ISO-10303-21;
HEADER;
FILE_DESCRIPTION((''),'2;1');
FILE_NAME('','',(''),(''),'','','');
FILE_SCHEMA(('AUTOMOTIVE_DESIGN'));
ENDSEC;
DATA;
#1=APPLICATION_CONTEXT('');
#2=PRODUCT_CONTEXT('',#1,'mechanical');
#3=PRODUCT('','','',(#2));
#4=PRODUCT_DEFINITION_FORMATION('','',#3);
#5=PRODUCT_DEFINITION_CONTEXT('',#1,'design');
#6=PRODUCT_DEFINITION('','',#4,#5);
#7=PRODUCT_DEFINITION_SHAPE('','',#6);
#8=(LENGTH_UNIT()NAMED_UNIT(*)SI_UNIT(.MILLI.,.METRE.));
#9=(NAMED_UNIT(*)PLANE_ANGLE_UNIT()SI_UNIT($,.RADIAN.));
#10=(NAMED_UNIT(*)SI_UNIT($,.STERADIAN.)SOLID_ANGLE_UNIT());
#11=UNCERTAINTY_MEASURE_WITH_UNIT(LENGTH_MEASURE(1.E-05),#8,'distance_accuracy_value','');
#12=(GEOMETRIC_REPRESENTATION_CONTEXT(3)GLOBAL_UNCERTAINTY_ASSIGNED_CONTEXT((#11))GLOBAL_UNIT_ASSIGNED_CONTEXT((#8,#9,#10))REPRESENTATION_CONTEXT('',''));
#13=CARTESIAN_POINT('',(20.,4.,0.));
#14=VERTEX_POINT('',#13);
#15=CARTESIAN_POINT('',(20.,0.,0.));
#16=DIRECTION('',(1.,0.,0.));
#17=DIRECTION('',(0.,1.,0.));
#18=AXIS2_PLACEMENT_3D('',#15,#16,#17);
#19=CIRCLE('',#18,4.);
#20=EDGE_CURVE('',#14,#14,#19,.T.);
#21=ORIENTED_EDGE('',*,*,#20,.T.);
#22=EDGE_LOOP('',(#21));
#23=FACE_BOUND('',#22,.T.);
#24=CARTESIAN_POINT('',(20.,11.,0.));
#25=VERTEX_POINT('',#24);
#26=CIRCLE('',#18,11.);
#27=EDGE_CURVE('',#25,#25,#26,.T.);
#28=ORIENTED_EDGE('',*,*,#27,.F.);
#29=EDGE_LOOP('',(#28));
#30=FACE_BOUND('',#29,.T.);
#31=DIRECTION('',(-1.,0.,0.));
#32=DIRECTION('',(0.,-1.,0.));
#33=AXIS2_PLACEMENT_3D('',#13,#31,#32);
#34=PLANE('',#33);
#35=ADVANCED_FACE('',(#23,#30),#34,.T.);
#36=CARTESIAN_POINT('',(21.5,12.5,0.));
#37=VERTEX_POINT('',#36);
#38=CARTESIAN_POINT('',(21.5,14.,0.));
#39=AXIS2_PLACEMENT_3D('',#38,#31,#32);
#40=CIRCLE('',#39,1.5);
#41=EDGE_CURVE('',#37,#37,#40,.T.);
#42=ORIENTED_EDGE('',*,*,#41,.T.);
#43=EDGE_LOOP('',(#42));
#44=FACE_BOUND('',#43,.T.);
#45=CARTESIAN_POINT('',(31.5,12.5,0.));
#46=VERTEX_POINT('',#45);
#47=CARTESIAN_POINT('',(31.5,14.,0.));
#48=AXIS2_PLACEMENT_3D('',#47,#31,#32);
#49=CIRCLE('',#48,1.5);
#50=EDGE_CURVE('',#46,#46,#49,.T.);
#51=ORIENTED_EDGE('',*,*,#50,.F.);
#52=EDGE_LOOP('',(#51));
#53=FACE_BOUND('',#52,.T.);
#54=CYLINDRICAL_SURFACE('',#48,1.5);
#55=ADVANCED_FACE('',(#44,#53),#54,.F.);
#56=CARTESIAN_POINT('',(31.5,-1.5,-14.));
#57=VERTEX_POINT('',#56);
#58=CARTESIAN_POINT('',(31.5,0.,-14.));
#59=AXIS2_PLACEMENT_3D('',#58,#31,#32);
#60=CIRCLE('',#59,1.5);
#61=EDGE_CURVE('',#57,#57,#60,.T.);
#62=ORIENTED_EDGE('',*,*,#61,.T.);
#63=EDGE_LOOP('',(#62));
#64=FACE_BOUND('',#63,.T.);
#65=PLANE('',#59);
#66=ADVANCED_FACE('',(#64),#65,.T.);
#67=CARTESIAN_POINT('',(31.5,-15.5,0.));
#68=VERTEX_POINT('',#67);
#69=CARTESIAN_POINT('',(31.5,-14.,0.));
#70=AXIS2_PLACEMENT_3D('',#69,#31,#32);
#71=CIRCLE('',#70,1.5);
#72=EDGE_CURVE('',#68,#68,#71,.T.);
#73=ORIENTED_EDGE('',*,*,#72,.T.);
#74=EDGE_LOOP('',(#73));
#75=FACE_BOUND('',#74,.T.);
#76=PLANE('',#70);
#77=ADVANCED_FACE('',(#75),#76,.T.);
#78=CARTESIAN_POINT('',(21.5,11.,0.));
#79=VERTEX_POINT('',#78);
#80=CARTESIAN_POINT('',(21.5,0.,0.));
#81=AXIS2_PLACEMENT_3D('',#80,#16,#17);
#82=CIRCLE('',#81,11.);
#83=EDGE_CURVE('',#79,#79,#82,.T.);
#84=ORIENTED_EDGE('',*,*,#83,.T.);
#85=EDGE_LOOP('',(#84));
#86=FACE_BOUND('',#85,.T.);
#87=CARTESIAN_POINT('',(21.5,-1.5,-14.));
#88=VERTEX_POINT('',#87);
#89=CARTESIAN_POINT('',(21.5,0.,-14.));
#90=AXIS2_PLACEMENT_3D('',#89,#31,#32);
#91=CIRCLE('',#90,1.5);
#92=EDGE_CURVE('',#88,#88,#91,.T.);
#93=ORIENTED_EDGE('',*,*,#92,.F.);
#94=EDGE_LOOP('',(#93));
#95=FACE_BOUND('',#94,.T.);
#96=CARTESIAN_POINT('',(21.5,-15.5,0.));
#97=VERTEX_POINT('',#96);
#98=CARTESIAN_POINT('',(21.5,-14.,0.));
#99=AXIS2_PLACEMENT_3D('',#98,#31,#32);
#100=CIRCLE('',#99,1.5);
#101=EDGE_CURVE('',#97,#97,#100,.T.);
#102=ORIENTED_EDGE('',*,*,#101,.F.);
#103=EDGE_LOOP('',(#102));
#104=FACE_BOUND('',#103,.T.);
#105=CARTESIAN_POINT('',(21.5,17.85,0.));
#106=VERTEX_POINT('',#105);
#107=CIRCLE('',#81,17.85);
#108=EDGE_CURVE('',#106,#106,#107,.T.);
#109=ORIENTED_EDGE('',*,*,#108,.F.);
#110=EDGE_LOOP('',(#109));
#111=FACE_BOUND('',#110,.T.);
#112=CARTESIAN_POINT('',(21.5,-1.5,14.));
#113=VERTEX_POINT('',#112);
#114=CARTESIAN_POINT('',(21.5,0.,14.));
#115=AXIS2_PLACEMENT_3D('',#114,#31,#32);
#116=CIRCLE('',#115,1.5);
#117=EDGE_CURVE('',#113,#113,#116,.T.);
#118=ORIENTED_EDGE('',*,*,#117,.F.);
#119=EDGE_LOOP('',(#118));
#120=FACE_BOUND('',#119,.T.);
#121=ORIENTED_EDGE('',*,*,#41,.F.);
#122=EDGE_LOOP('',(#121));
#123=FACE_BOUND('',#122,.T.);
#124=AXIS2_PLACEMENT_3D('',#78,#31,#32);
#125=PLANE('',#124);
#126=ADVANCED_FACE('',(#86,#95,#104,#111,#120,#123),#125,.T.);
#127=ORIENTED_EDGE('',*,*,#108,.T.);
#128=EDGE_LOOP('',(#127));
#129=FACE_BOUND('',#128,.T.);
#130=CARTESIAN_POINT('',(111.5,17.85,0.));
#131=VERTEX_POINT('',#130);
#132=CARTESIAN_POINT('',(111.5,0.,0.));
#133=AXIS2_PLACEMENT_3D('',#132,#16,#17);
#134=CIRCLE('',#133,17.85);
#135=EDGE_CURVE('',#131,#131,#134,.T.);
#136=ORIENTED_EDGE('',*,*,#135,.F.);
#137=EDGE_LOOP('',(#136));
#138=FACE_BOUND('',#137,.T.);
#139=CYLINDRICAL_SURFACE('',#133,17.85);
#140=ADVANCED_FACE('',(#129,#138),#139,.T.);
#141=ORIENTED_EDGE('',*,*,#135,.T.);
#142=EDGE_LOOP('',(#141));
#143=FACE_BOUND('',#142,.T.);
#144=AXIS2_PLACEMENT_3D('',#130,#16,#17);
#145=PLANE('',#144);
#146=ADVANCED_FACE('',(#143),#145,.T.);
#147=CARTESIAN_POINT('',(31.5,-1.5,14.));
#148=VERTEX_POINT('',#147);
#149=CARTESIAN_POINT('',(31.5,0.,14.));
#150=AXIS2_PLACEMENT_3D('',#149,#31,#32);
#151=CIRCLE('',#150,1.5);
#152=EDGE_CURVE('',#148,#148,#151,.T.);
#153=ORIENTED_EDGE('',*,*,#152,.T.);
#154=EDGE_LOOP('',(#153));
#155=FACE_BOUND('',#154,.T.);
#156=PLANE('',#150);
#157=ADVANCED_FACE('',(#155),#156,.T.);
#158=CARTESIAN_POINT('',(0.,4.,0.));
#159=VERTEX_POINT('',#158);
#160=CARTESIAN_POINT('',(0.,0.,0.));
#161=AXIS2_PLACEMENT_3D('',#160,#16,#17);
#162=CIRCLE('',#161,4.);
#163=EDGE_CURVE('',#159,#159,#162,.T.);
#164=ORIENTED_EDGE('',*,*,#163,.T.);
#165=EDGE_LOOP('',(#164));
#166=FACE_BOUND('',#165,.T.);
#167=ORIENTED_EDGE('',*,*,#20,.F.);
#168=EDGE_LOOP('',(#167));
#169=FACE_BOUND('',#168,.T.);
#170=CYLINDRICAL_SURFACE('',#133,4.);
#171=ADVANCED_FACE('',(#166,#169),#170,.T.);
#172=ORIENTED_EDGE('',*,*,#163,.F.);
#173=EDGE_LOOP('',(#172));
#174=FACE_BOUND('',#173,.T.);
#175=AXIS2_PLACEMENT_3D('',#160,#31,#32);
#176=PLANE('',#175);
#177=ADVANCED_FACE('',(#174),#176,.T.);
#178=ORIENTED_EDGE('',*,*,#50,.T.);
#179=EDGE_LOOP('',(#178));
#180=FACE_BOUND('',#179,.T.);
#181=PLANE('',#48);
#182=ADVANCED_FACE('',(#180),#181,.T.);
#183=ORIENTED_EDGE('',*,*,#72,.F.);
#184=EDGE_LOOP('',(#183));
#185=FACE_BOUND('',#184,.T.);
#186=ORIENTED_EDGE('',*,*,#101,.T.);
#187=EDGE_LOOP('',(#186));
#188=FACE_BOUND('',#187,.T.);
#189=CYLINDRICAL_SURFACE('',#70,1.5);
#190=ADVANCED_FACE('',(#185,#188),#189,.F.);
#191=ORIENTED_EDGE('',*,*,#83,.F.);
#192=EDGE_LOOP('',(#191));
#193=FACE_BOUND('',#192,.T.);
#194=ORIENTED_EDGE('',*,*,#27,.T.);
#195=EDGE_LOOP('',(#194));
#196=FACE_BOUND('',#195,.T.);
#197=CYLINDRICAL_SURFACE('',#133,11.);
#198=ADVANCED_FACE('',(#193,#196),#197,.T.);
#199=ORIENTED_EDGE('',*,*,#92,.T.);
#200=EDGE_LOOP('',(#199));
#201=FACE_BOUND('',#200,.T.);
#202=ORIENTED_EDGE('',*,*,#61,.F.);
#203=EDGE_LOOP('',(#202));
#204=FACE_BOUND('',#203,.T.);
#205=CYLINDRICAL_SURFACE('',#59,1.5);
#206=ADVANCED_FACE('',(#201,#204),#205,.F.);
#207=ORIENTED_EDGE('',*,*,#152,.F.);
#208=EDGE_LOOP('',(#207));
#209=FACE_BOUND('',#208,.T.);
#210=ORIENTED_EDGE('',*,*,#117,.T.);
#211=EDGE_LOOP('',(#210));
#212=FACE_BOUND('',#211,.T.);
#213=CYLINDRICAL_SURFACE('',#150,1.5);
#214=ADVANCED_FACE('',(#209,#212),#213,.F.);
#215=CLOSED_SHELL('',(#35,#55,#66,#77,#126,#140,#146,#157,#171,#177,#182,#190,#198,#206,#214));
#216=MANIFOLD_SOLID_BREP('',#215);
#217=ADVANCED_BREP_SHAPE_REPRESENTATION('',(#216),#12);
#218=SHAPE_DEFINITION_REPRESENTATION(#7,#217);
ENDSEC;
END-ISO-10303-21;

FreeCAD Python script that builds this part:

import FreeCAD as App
import Part
import Sketcher

V = App.Vector
Q = App.Units.Quantity


def add_polygon(sketch, points):
    """Adds a closed chain of lines whose ends are joined by coincident constraints."""
    first, n = sketch.GeometryCount, len(points)
    for a, b in zip(points, points[1:] + points[:1]):
        sketch.addGeometry(Part.LineSegment(App.Vector(*a, 0), App.Vector(*b, 0)), False)
    for i in range(n):
        sketch.addConstraint(Sketcher.Constraint("Coincident", first + i, 2, first + (i + 1) % n, 1))

doc = App.newDocument("Part")
params = doc.addObject("Spreadsheet::Sheet", "Params")
for row, (alias, value) in enumerate([
    ("sketch1_width", "90 mm"),
    ("sketch1_width2", "20 mm"),
    ("sketch1_height", "4 mm"),
    ("sketch1_height2", "7 mm"),
    ("sketch1_width3", "111.5 mm"),
    ("revolution_angle", "360 deg"),
    ("sketch2_diameter", "3 mm"),
    ("pocket1_length", "10 mm"),
], start=1):
    params.set(f"A{row}", alias)
    params.set(f"B{row}", "=" + value)
    params.setAlias(f"B{row}", alias)

body = doc.addObject("PartDesign::Body", "Body")

# Sketch on XY plane
sketch1 = doc.addObject("Sketcher::SketchObject", "Sketch")
body.addObject(sketch1)
sketch1.AttachmentSupport = (doc.XY_Plane, [""])
sketch1.MapMode = "FlatFace"
add_polygon(sketch1, [(0, 4), (0, 0), (111.5, 0), (111.5, 17.85), (21.5, 17.85), (21.5, 11), (20, 11), (20, 4)])  # lines 0-7
sketch1.addConstraint([
    Sketcher.Constraint("Vertical", 0),
    Sketcher.Constraint("Horizontal", 1),
    Sketcher.Constraint("Vertical", 2),
    Sketcher.Constraint("Horizontal", 3),
    Sketcher.Constraint("Vertical", 4),
    Sketcher.Constraint("Horizontal", 5),
    Sketcher.Constraint("Vertical", 6),
    Sketcher.Constraint("Horizontal", 7),
    Sketcher.Constraint("Coincident", 0, 2, -1, 1),
    Sketcher.Constraint("DistanceX", 3, 2, 3, 1, Q("90 mm")),
    Sketcher.Constraint("DistanceX", 7, 2, 7, 1, Q("20 mm")),
    Sketcher.Constraint("DistanceY", 0, 2, 0, 1, Q("4 mm")),
    Sketcher.Constraint("DistanceY", 6, 2, 6, 1, Q("7 mm")),
    Sketcher.Constraint("DistanceX", 1, 1, 1, 2, Q("111.5 mm")),
    Sketcher.Constraint("DistanceY", 2, 1, 2, 2, Q("17.85 mm")),
])
sketch1.setExpression("Constraints[17]", "Params.sketch1_width")
sketch1.setExpression("Constraints[18]", "Params.sketch1_width2")
sketch1.setExpression("Constraints[19]", "Params.sketch1_height")
sketch1.setExpression("Constraints[20]", "Params.sketch1_height2")
sketch1.setExpression("Constraints[21]", "Params.sketch1_width3")
revolution = doc.addObject("PartDesign::Revolution", "Revolution")
body.addObject(revolution)
revolution.Profile = sketch1
revolution.ReferenceAxis = (sketch1, ["H_Axis"])
revolution.setExpression("Angle", "Params.revolution_angle")

# Sketch on YZ plane
sketch2 = doc.addObject("Sketcher::SketchObject", "Sketch001")
body.addObject(sketch2)
sketch2.AttachmentSupport = (doc.YZ_Plane, [""])
sketch2.MapMode = "FlatFace"
sketch2.AttachmentOffset = App.Placement(V(0, 0, 21.5), App.Rotation())
sketch2.addGeometry([
    Part.Circle(V(14, 0, 0), V(0, 0, 1), 1.5),
    Part.Circle(V(0, 14, 0), V(0, 0, 1), 1.5),
    Part.Circle(V(-14, 0, 0), V(0, 0, 1), 1.5),
    Part.Circle(V(0, -14, 0), V(0, 0, 1), 1.5),
], False)
sketch2.addConstraint([
    Sketcher.Constraint("Equal", 0, 1),
    Sketcher.Constraint("Equal", 1, 2),
    Sketcher.Constraint("Equal", 2, 3),
    Sketcher.Constraint("Symmetric", 0, 3, 2, 3, -1, 1),
    Sketcher.Constraint("Symmetric", 1, 3, 3, 3, -1, 1),
    Sketcher.Constraint("PointOnObject", 0, 3, -1),
    Sketcher.Constraint("PointOnObject", 1, 3, -2),
    Sketcher.Constraint("Diameter", 0, Q("3 mm")),
    Sketcher.Constraint("DistanceX", -1, 1, 0, 3, Q("14 mm")),
    Sketcher.Constraint("DistanceY", -1, 1, 1, 3, Q("14 mm")),
])
sketch2.setExpression("Constraints[7]", "Params.sketch2_diameter")
pocket1 = doc.addObject("PartDesign::Pocket", "Pocket")
body.addObject(pocket1)
pocket1.Profile = sketch2
pocket1.setExpression("Length", "Params.pocket1_length")
pocket1.Reversed = True

doc.recompute()
